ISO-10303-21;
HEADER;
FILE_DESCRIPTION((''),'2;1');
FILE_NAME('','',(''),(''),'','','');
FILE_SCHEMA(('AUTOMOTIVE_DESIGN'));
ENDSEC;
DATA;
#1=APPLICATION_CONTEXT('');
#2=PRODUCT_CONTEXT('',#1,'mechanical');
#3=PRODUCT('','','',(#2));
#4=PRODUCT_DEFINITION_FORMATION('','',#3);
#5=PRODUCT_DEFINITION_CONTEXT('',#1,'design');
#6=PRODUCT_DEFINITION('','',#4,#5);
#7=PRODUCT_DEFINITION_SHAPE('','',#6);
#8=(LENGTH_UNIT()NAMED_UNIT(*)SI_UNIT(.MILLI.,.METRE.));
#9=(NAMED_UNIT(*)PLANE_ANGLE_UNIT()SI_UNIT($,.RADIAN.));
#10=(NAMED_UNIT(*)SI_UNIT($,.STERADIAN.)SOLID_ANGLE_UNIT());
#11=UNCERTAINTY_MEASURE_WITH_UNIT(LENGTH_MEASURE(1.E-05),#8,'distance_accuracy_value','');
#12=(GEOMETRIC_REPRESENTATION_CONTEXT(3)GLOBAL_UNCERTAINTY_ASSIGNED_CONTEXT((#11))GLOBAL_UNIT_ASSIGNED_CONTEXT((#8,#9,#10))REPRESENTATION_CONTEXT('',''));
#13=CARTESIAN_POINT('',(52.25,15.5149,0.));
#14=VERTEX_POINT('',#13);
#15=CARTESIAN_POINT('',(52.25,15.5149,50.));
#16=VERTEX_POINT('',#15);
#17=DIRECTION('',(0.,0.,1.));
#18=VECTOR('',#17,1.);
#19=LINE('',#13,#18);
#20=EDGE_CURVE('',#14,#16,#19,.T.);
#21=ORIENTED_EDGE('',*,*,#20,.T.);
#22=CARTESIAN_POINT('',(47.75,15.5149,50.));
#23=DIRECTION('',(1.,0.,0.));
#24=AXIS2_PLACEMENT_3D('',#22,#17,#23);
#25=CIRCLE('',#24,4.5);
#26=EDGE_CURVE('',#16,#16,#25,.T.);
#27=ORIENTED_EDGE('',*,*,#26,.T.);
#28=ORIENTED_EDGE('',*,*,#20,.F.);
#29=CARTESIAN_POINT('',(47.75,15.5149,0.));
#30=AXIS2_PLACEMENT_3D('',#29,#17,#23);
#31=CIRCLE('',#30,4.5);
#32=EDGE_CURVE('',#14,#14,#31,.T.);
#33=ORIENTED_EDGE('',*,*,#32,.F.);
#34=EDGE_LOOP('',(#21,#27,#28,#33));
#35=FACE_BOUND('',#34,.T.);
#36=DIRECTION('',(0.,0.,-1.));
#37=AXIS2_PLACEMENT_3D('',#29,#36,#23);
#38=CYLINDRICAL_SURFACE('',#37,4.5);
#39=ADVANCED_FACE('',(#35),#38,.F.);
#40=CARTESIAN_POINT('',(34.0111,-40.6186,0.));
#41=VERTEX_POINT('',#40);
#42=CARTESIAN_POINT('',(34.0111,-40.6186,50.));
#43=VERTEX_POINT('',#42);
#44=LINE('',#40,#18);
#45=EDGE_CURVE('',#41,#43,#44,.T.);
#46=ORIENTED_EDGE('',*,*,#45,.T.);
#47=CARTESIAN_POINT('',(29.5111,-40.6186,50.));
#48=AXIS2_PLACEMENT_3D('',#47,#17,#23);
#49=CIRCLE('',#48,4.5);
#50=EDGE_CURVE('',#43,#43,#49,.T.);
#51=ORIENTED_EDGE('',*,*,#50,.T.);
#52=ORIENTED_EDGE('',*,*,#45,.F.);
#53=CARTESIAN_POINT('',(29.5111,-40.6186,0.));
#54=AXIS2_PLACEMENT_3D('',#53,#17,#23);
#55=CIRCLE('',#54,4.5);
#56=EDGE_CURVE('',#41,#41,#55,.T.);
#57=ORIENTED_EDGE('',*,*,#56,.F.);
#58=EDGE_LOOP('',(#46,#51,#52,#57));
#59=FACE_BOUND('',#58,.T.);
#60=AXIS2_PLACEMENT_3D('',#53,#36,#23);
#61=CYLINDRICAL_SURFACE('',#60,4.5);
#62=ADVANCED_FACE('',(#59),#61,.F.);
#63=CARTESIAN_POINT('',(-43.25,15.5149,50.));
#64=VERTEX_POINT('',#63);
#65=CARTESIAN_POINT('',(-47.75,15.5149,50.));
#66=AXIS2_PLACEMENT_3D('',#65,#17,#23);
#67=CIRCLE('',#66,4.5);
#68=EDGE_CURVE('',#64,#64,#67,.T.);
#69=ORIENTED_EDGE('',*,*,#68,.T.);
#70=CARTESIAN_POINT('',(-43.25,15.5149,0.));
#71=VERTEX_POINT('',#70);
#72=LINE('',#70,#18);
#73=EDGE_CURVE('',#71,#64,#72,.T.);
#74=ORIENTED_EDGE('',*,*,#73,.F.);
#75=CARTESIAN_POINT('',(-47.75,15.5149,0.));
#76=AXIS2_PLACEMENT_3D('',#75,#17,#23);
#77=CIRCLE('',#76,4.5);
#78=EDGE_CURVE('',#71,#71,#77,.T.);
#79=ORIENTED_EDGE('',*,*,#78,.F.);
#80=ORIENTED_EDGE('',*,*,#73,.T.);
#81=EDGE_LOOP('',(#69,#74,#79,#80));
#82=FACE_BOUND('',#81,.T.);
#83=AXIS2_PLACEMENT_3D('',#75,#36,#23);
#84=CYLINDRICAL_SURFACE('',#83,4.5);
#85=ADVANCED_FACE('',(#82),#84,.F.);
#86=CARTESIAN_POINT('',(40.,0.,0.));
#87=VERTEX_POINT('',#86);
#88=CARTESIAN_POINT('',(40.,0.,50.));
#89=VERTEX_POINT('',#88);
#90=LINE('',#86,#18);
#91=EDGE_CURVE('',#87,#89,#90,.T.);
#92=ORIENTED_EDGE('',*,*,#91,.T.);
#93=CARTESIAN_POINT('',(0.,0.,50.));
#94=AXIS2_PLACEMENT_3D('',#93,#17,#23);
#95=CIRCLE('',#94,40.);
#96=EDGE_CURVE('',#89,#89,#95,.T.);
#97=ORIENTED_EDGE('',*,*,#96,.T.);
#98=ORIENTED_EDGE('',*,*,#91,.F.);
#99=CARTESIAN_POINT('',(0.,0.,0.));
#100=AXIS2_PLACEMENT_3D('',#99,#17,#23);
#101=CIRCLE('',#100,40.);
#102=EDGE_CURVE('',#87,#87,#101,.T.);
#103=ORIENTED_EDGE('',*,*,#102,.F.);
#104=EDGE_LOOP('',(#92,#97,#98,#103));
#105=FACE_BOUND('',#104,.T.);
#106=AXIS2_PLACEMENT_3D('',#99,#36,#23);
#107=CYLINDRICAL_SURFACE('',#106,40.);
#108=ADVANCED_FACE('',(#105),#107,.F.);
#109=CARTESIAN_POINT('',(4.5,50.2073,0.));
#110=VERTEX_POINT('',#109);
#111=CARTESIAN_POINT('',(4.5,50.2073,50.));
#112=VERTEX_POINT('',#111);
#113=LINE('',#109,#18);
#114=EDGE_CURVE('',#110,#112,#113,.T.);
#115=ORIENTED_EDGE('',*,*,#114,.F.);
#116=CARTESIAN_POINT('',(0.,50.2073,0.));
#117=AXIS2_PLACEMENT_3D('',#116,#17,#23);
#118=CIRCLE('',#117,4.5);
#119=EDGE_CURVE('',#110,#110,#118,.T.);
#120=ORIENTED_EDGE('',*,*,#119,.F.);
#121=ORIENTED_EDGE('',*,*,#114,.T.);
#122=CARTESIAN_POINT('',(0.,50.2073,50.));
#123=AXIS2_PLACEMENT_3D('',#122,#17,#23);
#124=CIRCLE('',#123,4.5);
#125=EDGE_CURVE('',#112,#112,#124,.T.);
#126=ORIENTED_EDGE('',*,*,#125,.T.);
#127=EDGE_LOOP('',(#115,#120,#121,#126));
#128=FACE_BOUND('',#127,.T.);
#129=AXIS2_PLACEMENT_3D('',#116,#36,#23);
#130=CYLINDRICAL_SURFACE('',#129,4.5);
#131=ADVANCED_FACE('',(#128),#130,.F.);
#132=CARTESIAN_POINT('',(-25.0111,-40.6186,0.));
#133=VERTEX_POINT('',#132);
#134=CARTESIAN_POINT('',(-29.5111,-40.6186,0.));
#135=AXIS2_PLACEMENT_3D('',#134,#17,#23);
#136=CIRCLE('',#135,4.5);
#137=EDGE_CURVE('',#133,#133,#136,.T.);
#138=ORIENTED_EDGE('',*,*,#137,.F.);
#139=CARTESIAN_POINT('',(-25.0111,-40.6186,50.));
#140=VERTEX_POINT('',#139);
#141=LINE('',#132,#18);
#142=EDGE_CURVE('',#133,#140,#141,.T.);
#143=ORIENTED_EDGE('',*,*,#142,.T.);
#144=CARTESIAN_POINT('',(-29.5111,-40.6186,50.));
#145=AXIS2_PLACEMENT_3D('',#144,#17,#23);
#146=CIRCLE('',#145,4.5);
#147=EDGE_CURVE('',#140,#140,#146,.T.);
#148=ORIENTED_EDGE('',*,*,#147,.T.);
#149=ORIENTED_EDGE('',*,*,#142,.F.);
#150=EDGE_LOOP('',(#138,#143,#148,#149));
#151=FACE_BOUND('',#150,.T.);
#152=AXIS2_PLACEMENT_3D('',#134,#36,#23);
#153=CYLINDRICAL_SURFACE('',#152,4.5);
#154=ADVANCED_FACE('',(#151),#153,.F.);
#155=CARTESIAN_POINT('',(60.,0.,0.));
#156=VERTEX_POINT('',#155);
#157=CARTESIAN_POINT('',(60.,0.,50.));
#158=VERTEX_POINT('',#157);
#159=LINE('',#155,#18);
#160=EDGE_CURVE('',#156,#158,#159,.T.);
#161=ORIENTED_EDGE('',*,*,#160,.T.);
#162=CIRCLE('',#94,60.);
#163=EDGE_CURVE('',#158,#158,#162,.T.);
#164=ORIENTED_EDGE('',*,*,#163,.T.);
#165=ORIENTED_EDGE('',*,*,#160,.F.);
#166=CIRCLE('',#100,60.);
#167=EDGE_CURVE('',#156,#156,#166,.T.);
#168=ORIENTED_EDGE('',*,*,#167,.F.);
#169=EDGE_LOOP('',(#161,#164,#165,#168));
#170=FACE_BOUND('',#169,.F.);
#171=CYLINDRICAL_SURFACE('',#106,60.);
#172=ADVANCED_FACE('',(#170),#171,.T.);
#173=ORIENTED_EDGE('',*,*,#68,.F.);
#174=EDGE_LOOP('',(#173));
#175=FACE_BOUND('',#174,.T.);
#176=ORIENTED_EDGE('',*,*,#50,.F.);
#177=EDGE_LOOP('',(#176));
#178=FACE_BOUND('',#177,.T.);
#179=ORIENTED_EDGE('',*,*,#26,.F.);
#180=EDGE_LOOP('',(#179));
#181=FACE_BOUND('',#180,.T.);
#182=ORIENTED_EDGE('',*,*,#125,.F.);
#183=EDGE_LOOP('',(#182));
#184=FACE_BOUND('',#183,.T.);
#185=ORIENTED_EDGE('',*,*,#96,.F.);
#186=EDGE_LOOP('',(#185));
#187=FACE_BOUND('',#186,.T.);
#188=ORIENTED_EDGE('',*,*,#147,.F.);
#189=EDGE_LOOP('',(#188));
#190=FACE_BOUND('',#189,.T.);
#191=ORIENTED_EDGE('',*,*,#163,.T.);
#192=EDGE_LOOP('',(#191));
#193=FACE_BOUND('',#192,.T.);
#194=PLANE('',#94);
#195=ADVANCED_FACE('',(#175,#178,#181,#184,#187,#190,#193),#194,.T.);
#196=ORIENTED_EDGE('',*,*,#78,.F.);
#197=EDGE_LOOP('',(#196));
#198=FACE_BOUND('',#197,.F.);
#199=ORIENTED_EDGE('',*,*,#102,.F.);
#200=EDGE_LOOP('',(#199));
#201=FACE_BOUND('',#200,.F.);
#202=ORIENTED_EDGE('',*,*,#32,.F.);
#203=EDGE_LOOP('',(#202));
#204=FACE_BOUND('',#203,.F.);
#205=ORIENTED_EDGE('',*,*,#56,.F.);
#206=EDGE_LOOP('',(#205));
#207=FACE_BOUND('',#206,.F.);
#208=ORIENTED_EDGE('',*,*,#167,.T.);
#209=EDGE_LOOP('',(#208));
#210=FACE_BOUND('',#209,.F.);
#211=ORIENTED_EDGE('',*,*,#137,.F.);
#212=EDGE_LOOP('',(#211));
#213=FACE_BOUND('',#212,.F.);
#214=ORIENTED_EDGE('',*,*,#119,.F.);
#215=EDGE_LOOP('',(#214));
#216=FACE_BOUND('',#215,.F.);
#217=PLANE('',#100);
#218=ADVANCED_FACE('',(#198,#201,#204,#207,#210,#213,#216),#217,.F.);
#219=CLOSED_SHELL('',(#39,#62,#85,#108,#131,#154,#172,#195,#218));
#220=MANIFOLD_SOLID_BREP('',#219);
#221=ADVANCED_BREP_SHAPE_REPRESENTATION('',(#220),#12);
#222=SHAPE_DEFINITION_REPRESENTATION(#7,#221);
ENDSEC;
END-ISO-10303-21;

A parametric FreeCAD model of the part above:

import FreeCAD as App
import Part
import Sketcher

V = App.Vector

doc = App.newDocument("Part")
body = doc.addObject("PartDesign::Body", "Body")

# Sketch on XY plane
sketch1 = body.newObject("Sketcher::SketchObject", "Sketch")
sketch1.AttachmentSupport = (doc.getObject("XY_Plane"), [""])
sketch1.MapMode = "FlatFace"
sketch1.addGeometry([
    Part.Circle(V(0, 0, 0), V(0, 0, 1), 60),  # 0
    Part.Circle(V(-29.5111, -40.6186, 0), V(0, 0, 1), 4.5),  # 1
    Part.Circle(V(29.5111, -40.6186, 0), V(0, 0, 1), 4.5),  # 2
    Part.Circle(V(-47.75, 15.5149, 0), V(0, 0, 1), 4.5),  # 3
    Part.Circle(V(0, 0, 0), V(0, 0, 1), 40),  # 4
    Part.Circle(V(47.75, 15.5149, 0), V(0, 0, 1), 4.5),  # 5
    Part.Circle(V(0, 50.2073, 0), V(0, 0, 1), 4.5),  # 6
], False)
sketch1.addConstraint([
    Sketcher.Constraint("Coincident", 0, 3, -1, 1),
    Sketcher.Constraint("Coincident", 4, 3, -1, 1),
    Sketcher.Constraint("Equal", 1, 2),
    Sketcher.Constraint("Equal", 2, 3),
    Sketcher.Constraint("Equal", 3, 5),
    Sketcher.Constraint("Equal", 5, 6),
    Sketcher.Constraint("Symmetric", 1, 3, 2, 3, -2),
    Sketcher.Constraint("Symmetric", 3, 3, 5, 3, -2),
    Sketcher.Constraint("PointOnObject", 6, 3, -2),
    Sketcher.Constraint("Diameter", 0, 120.0),
    Sketcher.Constraint("Diameter", 1, 9.0),
    Sketcher.Constraint("Diameter", 4, 80.0),
    Sketcher.Constraint("DistanceX", 3, 3, 5, 3, 95.5),
    Sketcher.Constraint("DistanceX", 1, 3, -1, 1, 29.511),
    Sketcher.Constraint("DistanceY", -1, 1, 3, 3, 15.515),
    Sketcher.Constraint("DistanceY", 1, 3, 6, 3, 90.826),
    Sketcher.Constraint("DistanceY", 1, 3, -1, 1, 40.6186),
])
pad1 = body.newObject("PartDesign::Pad", "Pad")
pad1.Profile = sketch1
pad1.Length = 50

doc.recompute()
